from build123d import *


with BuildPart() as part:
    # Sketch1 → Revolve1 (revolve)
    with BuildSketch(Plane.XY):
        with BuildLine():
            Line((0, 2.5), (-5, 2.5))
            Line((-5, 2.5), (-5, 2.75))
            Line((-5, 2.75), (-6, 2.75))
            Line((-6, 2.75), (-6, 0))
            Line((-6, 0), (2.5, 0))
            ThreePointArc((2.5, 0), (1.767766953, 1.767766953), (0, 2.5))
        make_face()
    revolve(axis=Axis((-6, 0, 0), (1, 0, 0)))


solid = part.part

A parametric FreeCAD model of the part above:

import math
import FreeCAD as App
import Part
import Sketcher
Q = App.Units.Quantity

doc = App.newDocument("Part")
params = doc.addObject("Spreadsheet::Sheet", "Params")
for row, (alias, value) in enumerate([
    ("sketch1_radius", "2.5 mm"),
    ("sketch1_width", "5 mm"),
    ("sketch1_width2", "1 mm"),
    ("sketch1_height", "0.25 mm"),
    ("revolution_angle", "360 deg"),
], start=1):
    params.set(f"A{row}", alias)
    params.set(f"B{row}", "=" + value)
    params.setAlias(f"B{row}", alias)

body = doc.addObject("PartDesign::Body", "Body")

# Sketch on XY plane
sketch1 = doc.addObject("Sketcher::SketchObject", "Sketch")
body.addObject(sketch1)
sketch1.AttachmentSupport = (doc.XY_Plane, [""])
sketch1.MapMode = "FlatFace"
sketch1.addGeometry([
    Part.LineSegment(App.Vector(0, 2.5, 0), App.Vector(-5, 2.5, 0)),  # 0
    Part.LineSegment(App.Vector(-5, 2.5, 0), App.Vector(-5, 2.75, 0)),  # 1
    Part.LineSegment(App.Vector(-5, 2.75, 0), App.Vector(-6, 2.75, 0)),  # 2
    Part.LineSegment(App.Vector(-6, 2.75, 0), App.Vector(-6, 0, 0)),  # 3
    Part.LineSegment(App.Vector(-6, 0, 0), App.Vector(2.5, 0, 0)),  # 4
    Part.ArcOfCircle(Part.Circle(App.Vector(0, 0, 0), App.Vector(0, 0, 1), 2.5), math.radians(0), math.radians(90)),  # 5
], False)
sketch1.addConstraint([
    Sketcher.Constraint("Coincident", 0, 2, 1, 1),
    Sketcher.Constraint("Coincident", 1, 2, 2, 1),
    Sketcher.Constraint("Coincident", 2, 2, 3, 1),
    Sketcher.Constraint("Coincident", 3, 2, 4, 1),
    Sketcher.Constraint("Coincident", 4, 2, 5, 1),
    Sketcher.Constraint("Tangent", 5, 2, 0, 1),
    Sketcher.Constraint("Horizontal", 0),
    Sketcher.Constraint("Vertical", 1),
    Sketcher.Constraint("Horizontal", 2),
    Sketcher.Constraint("Vertical", 3),
    Sketcher.Constraint("Horizontal", 4),
    Sketcher.Constraint("Coincident", 5, 3, -1, 1),
    Sketcher.Constraint("PointOnObject", 3, 2, -1),
    Sketcher.Constraint("Radius", 5, Q("2.5 mm")),
    Sketcher.Constraint("DistanceX", 0, 2, 0, 1, Q("5 mm")),
    Sketcher.Constraint("DistanceX", 2, 2, 2, 1, Q("1 mm")),
    Sketcher.Constraint("DistanceY", 1, 1, 1, 2, Q("0.25 mm")),
])
sketch1.setExpression("Constraints[13]", "Params.sketch1_radius")
sketch1.setExpression("Constraints[14]", "Params.sketch1_width")
sketch1.setExpression("Constraints[15]", "Params.sketch1_width2")
sketch1.setExpression("Constraints[16]", "Params.sketch1_height")
revolution = doc.addObject("PartDesign::Revolution", "Revolution")
body.addObject(revolution)
revolution.Profile = sketch1
revolution.ReferenceAxis = (sketch1, ["H_Axis"])
revolution.setExpression("Angle", "Params.revolution_angle")

doc.recompute()
